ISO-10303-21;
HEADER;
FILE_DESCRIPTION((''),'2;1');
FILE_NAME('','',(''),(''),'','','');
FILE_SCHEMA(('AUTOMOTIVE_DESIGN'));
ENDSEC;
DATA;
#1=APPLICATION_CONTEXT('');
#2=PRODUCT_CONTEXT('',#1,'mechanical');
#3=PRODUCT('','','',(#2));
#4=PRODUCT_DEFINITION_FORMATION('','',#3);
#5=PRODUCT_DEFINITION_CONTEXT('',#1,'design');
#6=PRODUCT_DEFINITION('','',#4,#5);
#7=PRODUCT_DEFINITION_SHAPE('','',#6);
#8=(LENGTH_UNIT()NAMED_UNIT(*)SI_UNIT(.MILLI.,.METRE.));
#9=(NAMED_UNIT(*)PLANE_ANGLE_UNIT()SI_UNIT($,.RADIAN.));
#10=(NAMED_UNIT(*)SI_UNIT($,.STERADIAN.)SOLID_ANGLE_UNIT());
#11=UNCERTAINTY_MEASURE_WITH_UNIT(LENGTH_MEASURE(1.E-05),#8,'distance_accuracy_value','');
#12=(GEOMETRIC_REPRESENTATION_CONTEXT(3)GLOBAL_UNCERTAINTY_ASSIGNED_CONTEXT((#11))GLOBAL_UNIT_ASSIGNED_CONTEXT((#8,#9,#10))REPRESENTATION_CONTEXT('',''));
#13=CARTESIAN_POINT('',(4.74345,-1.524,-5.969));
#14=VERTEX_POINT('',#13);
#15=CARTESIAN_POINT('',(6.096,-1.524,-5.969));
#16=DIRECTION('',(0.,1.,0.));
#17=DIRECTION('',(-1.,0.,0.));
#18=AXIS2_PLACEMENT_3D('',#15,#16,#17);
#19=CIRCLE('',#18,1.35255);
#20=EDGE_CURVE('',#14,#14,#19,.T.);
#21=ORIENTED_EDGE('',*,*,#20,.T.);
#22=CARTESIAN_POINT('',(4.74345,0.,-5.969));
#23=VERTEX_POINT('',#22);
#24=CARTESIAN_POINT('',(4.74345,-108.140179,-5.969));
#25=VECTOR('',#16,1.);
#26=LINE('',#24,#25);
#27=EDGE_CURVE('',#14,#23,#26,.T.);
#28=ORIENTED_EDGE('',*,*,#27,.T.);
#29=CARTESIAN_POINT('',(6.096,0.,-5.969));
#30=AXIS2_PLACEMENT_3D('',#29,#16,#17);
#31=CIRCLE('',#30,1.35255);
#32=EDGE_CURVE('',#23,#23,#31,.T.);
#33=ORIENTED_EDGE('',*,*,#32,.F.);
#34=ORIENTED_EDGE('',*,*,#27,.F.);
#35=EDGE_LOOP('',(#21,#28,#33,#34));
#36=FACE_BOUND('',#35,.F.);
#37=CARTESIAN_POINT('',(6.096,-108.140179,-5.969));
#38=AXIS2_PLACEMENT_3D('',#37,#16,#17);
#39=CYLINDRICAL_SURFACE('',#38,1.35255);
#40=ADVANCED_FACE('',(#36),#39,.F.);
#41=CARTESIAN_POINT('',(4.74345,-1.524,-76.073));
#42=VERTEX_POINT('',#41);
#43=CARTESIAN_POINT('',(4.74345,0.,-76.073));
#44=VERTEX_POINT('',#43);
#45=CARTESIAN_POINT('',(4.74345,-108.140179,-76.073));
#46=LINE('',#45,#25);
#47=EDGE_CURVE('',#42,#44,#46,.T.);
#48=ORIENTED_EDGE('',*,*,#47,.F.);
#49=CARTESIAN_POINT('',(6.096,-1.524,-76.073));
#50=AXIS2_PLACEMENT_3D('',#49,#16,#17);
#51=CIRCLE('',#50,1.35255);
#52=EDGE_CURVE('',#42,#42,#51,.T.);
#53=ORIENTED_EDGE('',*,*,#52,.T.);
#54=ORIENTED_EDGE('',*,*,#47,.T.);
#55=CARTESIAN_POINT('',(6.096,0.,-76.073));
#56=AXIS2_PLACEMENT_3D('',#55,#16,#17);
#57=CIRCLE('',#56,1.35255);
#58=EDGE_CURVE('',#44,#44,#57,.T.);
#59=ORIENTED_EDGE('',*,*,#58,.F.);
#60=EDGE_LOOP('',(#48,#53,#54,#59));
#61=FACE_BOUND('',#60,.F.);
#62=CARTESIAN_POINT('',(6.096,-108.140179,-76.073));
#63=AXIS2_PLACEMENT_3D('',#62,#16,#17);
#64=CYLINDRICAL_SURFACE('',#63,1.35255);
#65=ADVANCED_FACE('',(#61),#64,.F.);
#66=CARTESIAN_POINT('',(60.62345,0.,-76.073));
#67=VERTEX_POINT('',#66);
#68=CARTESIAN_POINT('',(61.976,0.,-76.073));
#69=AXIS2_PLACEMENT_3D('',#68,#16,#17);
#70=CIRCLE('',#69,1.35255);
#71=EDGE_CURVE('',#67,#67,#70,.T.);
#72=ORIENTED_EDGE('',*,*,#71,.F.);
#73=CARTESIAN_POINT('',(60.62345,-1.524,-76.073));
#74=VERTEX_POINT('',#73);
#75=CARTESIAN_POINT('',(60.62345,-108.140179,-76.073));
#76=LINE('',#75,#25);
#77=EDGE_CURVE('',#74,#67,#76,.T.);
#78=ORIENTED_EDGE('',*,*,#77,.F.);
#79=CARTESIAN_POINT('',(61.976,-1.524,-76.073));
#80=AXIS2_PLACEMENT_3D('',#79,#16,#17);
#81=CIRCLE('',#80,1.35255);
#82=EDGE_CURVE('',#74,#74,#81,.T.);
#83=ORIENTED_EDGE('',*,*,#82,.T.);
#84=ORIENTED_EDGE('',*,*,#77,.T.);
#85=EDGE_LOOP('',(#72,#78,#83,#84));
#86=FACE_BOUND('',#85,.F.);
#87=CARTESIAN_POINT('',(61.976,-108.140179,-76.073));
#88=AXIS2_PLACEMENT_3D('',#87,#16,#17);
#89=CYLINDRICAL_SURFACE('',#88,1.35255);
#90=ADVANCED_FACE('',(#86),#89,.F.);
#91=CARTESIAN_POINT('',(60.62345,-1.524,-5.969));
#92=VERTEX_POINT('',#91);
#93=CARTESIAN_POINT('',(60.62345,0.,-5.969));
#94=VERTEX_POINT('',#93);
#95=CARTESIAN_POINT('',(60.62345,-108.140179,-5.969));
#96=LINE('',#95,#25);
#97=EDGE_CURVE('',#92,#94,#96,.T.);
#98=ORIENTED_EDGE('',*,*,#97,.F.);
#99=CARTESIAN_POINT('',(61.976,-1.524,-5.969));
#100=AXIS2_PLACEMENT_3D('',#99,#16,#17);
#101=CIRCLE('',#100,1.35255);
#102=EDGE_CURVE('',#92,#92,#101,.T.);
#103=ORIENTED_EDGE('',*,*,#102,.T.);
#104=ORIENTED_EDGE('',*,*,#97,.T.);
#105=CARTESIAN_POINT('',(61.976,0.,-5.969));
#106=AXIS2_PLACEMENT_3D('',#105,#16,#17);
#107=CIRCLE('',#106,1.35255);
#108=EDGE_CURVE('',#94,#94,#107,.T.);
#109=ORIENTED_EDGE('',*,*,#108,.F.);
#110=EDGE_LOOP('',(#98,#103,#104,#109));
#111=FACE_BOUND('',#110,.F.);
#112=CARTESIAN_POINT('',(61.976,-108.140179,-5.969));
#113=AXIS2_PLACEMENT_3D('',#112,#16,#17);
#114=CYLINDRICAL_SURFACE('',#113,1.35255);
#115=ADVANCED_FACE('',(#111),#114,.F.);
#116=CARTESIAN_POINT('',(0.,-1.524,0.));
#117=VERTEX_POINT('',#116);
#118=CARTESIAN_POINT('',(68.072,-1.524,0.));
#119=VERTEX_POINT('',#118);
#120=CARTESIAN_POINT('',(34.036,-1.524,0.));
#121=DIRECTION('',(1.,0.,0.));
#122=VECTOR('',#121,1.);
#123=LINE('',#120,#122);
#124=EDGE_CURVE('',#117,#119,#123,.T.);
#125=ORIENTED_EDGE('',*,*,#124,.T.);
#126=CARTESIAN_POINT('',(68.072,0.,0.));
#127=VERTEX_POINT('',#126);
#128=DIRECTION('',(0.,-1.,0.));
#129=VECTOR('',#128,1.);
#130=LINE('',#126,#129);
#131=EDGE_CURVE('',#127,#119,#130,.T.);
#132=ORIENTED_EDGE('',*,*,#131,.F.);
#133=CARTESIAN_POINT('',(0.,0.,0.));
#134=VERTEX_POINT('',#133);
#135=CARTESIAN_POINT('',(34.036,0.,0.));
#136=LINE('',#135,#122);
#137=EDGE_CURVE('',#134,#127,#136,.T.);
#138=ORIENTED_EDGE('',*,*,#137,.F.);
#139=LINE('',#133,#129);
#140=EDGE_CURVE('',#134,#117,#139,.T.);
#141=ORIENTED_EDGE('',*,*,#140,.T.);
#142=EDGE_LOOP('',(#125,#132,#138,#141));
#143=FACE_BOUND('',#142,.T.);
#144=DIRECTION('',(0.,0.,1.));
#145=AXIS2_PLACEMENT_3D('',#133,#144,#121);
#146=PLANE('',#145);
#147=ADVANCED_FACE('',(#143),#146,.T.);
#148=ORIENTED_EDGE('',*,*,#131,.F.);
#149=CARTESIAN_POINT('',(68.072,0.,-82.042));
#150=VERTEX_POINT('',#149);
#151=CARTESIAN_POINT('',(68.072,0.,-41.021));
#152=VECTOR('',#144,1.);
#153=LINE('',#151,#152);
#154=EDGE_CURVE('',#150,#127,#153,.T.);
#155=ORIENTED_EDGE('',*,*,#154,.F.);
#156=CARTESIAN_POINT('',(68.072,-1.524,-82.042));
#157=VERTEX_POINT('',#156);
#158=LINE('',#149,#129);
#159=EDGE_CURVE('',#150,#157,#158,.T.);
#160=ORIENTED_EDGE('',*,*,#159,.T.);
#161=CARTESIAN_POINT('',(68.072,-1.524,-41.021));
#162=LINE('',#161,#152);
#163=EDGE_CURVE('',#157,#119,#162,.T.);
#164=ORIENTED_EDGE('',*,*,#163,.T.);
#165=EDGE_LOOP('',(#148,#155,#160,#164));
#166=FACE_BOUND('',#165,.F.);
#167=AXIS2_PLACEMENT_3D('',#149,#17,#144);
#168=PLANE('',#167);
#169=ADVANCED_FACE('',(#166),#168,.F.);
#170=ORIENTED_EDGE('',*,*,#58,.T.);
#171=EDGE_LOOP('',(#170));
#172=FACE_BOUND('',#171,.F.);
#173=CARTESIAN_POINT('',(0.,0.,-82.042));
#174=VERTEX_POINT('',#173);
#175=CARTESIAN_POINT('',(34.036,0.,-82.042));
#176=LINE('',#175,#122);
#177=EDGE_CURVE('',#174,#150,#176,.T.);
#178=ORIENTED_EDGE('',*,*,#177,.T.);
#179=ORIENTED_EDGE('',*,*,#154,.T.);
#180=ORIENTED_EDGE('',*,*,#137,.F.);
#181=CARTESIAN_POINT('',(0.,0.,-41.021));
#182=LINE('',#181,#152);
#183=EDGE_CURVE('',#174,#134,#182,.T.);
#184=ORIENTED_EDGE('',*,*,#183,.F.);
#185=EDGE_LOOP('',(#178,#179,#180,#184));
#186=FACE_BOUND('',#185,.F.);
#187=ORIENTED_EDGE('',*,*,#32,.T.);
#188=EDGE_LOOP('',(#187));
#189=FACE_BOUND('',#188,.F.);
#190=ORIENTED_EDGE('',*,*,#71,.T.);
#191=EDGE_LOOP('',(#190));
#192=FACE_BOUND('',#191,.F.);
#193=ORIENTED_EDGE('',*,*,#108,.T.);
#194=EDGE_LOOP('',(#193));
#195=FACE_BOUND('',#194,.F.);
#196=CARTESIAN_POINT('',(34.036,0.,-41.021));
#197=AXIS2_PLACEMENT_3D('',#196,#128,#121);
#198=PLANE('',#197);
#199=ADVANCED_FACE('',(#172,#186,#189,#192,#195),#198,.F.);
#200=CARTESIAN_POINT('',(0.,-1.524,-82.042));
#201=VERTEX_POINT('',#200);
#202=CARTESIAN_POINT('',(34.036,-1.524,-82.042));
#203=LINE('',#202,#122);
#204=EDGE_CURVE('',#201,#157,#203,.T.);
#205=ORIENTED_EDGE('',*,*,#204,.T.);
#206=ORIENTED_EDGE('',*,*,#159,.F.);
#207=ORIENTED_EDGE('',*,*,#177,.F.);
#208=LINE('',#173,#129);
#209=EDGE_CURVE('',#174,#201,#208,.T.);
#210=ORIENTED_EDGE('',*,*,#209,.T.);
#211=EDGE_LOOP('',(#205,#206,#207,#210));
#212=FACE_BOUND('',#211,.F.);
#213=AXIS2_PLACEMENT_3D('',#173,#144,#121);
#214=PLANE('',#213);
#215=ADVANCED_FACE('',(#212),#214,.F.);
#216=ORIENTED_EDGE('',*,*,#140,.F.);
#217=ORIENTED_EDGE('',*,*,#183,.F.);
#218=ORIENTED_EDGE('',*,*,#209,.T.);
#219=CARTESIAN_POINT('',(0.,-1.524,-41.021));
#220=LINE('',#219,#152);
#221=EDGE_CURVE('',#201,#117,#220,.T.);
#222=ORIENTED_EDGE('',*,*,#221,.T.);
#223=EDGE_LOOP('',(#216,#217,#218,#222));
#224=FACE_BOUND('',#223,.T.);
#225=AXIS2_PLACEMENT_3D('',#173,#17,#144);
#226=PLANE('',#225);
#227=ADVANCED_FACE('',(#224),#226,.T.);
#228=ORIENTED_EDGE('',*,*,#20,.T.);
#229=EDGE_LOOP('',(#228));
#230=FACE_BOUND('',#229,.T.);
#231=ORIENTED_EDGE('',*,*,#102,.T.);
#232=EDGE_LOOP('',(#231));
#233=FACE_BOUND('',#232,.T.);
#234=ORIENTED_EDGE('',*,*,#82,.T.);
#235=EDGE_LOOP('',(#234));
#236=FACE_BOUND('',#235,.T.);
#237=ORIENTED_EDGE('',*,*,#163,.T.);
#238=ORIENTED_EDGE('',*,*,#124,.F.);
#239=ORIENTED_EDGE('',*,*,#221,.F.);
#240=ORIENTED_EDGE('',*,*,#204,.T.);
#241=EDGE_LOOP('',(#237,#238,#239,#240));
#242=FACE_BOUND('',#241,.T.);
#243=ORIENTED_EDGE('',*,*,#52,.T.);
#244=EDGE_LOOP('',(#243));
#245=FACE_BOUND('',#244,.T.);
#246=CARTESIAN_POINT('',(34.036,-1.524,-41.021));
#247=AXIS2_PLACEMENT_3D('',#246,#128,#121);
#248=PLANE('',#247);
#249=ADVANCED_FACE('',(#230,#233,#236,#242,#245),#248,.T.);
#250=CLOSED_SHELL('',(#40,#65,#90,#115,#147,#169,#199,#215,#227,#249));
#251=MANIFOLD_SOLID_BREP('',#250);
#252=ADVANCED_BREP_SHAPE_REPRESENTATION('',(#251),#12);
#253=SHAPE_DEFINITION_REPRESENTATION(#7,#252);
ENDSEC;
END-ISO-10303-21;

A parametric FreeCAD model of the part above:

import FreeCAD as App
import Part
import Sketcher

V = App.Vector
Q = App.Units.Quantity


def add_polygon(sketch, points):
    """Adds a closed chain of lines whose ends are joined by coincident constraints."""
    first, n = sketch.GeometryCount, len(points)
    for a, b in zip(points, points[1:] + points[:1]):
        sketch.addGeometry(Part.LineSegment(App.Vector(*a, 0), App.Vector(*b, 0)), False)
    for i in range(n):
        sketch.addConstraint(Sketcher.Constraint("Coincident", first + i, 2, first + (i + 1) % n, 1))

doc = App.newDocument("Part")
body = doc.addObject("PartDesign::Body", "Body")

# Sketch on XZ plane
sketch1 = body.newObject("Sketcher::SketchObject", "Sketch")
sketch1.AttachmentSupport = (doc.getObject("XZ_Plane"), [""])
sketch1.MapMode = "FlatFace"
add_polygon(sketch1, [(0, 0), (0, -82.042), (68.072, -82.042), (68.072, 0)])  # lines 0-3
sketch1.addConstraint(Sketcher.Constraint("Vertical", 0))
sketch1.addConstraint(Sketcher.Constraint("Horizontal", 1))
sketch1.addConstraint(Sketcher.Constraint("Vertical", 2))
sketch1.addConstraint(Sketcher.Constraint("Horizontal", 3))
sketch1.addConstraint(Sketcher.Constraint("Coincident", 3, 2, -1, 1))
sketch1.addConstraint(Sketcher.Constraint("DistanceX", 1, 1, 1, 2, Q("2.68 in")))
sketch1.addConstraint(Sketcher.Constraint("DistanceY", 0, 2, 0, 1, Q("3.23 in")))
pad1 = body.newObject("PartDesign::Pad", "Pad")
pad1.Profile = sketch1
pad1.Length = Q("0.06 in")

# Sketch on XZ plane
sketch2 = body.newObject("Sketcher::SketchObject", "Sketch001")
sketch2.AttachmentSupport = (doc.getObject("XZ_Plane"), [""])
sketch2.MapMode = "FlatFace"
sketch2.AttachmentOffset = App.Placement(V(0, 0, 0.06 * 25.4), App.Rotation())
sketch2.addGeometry(Part.Circle(V(6.096, -5.969, 0), V(0, 0, 1), 1.35255), False)
sketch2.addGeometry(Part.Circle(V(61.976, -5.969, 0), V(0, 0, 1), 1.35255), False)
sketch2.addGeometry(Part.Circle(V(61.976, -76.073, 0), V(0, 0, 1), 1.35255), False)
sketch2.addGeometry(Part.Circle(V(6.096, -76.073, 0), V(0, 0, 1), 1.35255), False)
sketch2.addConstraint(Sketcher.Constraint("Equal", 0, 1))
sketch2.addConstraint(Sketcher.Constraint("Equal", 1, 2))
sketch2.addConstraint(Sketcher.Constraint("Equal", 2, 3))
sketch2.addConstraint(Sketcher.Constraint("Horizontal", 0, 3, 1, 3))
sketch2.addConstraint(Sketcher.Constraint("Horizontal", 2, 3, 3, 3))
sketch2.addConstraint(Sketcher.Constraint("Vertical", 1, 3, 2, 3))
sketch2.addConstraint(Sketcher.Constraint("Vertical", 0, 3, 3, 3))
sketch2.addConstraint(Sketcher.Constraint("Diameter", 0, Q("0.1065 in")))
sketch2.addConstraint(Sketcher.Constraint("DistanceX", 0, 3, 1, 3, Q("2.2 in")))
sketch2.addConstraint(Sketcher.Constraint("DistanceX", -1, 1, 0, 3, Q("0.24 in")))
sketch2.addConstraint(Sketcher.Constraint("DistanceY", 2, 3, 1, 3, Q("2.76 in")))
sketch2.addConstraint(Sketcher.Constraint("DistanceY", 0, 3, -1, 1, Q("0.235 in")))
doc.recompute()
hole = body.newObject("PartDesign::Hole", "Hole")
hole.Profile = sketch2
hole.ThreadType = "None"
hole.Diameter = Q("0.1065 in")
hole.DepthType = "ThroughAll"

doc.recompute()
